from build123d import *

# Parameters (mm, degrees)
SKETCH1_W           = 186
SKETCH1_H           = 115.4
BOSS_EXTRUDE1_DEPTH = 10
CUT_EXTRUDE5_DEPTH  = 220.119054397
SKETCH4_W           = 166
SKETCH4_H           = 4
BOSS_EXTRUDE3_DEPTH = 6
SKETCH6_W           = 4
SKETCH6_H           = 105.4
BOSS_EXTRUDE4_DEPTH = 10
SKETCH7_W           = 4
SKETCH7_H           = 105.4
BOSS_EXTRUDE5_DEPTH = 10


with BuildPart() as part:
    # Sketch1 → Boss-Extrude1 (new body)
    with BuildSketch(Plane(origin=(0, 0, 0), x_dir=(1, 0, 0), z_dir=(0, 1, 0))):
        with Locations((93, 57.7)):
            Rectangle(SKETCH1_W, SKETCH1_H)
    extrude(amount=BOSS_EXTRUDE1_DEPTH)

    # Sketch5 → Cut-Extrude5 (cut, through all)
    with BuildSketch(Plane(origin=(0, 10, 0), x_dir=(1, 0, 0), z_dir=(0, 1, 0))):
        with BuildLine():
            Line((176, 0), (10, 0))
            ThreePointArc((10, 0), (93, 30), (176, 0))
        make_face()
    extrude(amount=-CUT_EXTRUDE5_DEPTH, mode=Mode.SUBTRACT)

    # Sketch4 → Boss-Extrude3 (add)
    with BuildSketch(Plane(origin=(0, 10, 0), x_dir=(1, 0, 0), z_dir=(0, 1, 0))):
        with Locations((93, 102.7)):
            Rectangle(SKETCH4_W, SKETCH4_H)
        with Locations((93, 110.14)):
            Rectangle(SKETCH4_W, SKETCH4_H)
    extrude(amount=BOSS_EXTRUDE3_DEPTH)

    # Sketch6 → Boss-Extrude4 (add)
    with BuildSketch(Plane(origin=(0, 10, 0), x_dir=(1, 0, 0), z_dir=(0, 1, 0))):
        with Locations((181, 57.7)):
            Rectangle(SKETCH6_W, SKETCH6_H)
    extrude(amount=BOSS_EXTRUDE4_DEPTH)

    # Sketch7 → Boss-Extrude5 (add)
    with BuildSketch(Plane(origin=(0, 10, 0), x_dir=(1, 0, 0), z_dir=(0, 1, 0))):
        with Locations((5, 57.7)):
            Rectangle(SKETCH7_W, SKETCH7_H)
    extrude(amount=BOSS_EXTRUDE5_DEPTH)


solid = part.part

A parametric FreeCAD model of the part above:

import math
import FreeCAD as App
import Part
import Sketcher


def add_polygon(sketch, points):
    """Adds a closed chain of lines whose ends are joined by coincident constraints."""
    first, n = sketch.GeometryCount, len(points)
    for a, b in zip(points, points[1:] + points[:1]):
        sketch.addGeometry(Part.LineSegment(App.Vector(*a, 0), App.Vector(*b, 0)), False)
    for i in range(n):
        sketch.addConstraint(Sketcher.Constraint("Coincident", first + i, 2, first + (i + 1) % n, 1))

doc = App.newDocument("Part")
params = doc.addObject("Spreadsheet::Sheet", "Params")
for row, (alias, value) in enumerate([
    ("sketch1_width", "186 mm"),
    ("sketch1_height", "115.4 mm"),
    ("pad1_length", "10 mm"),
    ("sketch2_width", "166 mm"),
    ("sketch3_width", "166 mm"),
    ("sketch3_height", "4 mm"),
    ("pad2_length", "6 mm"),
    ("sketch4_width", "4 mm"),
    ("sketch4_height", "105.4 mm"),
    ("pad3_length", "10 mm"),
    ("sketch5_width", "4 mm"),
    ("sketch5_height", "105.4 mm"),
    ("pad4_length", "10 mm"),
], start=1):
    params.set(f"A{row}", alias)
    params.set(f"B{row}", "=" + value)
    params.setAlias(f"B{row}", alias)

body = doc.addObject("PartDesign::Body", "Body")

sketch1 = doc.addObject("Sketcher::SketchObject", "Sketch")
body.addObject(sketch1)
sketch1.AttachmentSupport = (doc.XZ_Plane, [""])
sketch1.MapMode = "FlatFace"
add_polygon(sketch1, [(0, -115), (0, 0), (186, 0), (186, -115)])
sketch1.addConstraint([
    Sketcher.Constraint("Vertical", 0),
    Sketcher.Constraint("Horizontal", 1),
    Sketcher.Constraint("Vertical", 2),
    Sketcher.Constraint("Horizontal", 3),
    Sketcher.Constraint("Coincident", 0, 2, -1, 1),
    Sketcher.Constraint("DistanceX", 1, 1, 1, 2, 186.0),
    Sketcher.Constraint("DistanceY", 0, 1, 0, 2, 115.4),
])
sketch1.setExpression("Constraints[9]", "Params.sketch1_width")
sketch1.setExpression("Constraints[10]", "Params.sketch1_height")
pad1 = doc.addObject("PartDesign::Pad", "Pad")
body.addObject(pad1)
pad1.Profile = sketch1
pad1.setExpression("Length", "Params.pad1_length")
pad1.Reversed = True

sketch2 = doc.addObject("Sketcher::SketchObject", "Sketch001")
body.addObject(sketch2)
sketch2.AttachmentSupport = (doc.XZ_Plane, [""])
sketch2.MapMode = "FlatFace"
sketch2.AttachmentOffset = App.Placement(App.Vector(0, 0, -10), App.Rotation())
sketch2.addGeometry([
    Part.LineSegment(App.Vector(10, 0, 0), App.Vector(176, 0, 0)),
    Part.ArcOfCircle(Part.Circle(App.Vector(93, 100, 0), App.Vector(0, 0, 1), 130), math.radians(-130), math.radians(-50)),
], False)
sketch2.addConstraint([
    Sketcher.Constraint("Coincident", 0, 1, 1, 1),
    Sketcher.Constraint("Coincident", 1, 2, 0, 2),
    Sketcher.Constraint("Horizontal", 0),
    Sketcher.Constraint("PointOnObject", 0, 1, -1),
    Sketcher.Constraint("DistanceX", 0, 1, 0, 2, 166.0),
    Sketcher.Constraint("DistanceX", -1, 1, 1, 3, 93.0),
    Sketcher.Constraint("Radius", 1, 129.816667),
])
sketch2.setExpression("Constraints[4]", "Params.sketch2_width")
pocket1 = doc.addObject("PartDesign::Pocket", "Pocket")
body.addObject(pocket1)
pocket1.Profile = sketch2
pocket1.Type = "ThroughAll"
pocket1.Reversed = True

sketch3 = doc.addObject("Sketcher::SketchObject", "Sketch002")
body.addObject(sketch3)
sketch3.AttachmentSupport = (doc.XZ_Plane, [""])
sketch3.MapMode = "FlatFace"
sketch3.AttachmentOffset = App.Placement(App.Vector(0, 0, -10), App.Rotation())
add_polygon(sketch3, [(10, -104.7), (10, -100.7), (176, -100.7), (176, -104.7)])
add_polygon(sketch3, [(10, -112.1), (10, -108.1), (176, -108.1), (176, -112.1)])
sketch3.addConstraint([
    Sketcher.Constraint("Vertical", 0),
    Sketcher.Constraint("Horizontal", 1),
    Sketcher.Constraint("Vertical", 2),
    Sketcher.Constraint("Horizontal", 3),
    Sketcher.Constraint("Vertical", 4),
    Sketcher.Constraint("Horizontal", 5),
    Sketcher.Constraint("Vertical", 6),
    Sketcher.Constraint("Horizontal", 7),
    Sketcher.Constraint("Vertical", 3, 2, 4, 2),
    Sketcher.Constraint("Vertical", 2, 2, 5, 2),
    Sketcher.Constraint("Equal", 2, 4),
    Sketcher.Constraint("DistanceX", 1, 1, 1, 2, 166.0),
    Sketcher.Constraint("DistanceY", 0, 1, 0, 2, 4.0),
    Sketcher.Constraint("DistanceX", -1, 1, 0, 2, 10.0),
    Sketcher.Constraint("DistanceY", 0, 2, -1, 1, 100.7),
    Sketcher.Constraint("DistanceY", 4, 2, -1, 1, 108.14),
])
sketch3.setExpression("Constraints[19]", "Params.sketch3_width")
sketch3.setExpression("Constraints[20]", "Params.sketch3_height")
pad2 = doc.addObject("PartDesign::Pad", "Pad001")
body.addObject(pad2)
pad2.Profile = sketch3
pad2.setExpression("Length", "Params.pad2_length")
pad2.Reversed = True

sketch4 = doc.addObject("Sketcher::SketchObject", "Sketch003")
body.addObject(sketch4)
sketch4.AttachmentSupport = (doc.XZ_Plane, [""])
sketch4.MapMode = "FlatFace"
sketch4.AttachmentOffset = App.Placement(App.Vector(0, 0, -10), App.Rotation())
add_polygon(sketch4, [(179, -110.4), (179, -5), (183, -5), (183, -110.4)])
sketch4.addConstraint([
    Sketcher.Constraint("Vertical", 0),
    Sketcher.Constraint("Horizontal", 1),
    Sketcher.Constraint("Vertical", 2),
    Sketcher.Constraint("Horizontal", 3),
    Sketcher.Constraint("DistanceX", 1, 1, 1, 2, 4.0),
    Sketcher.Constraint("DistanceY", 0, 1, 0, 2, 105.4),
    Sketcher.Constraint("DistanceX", -1, 1, 0, 2, 179.0),
    Sketcher.Constraint("DistanceY", 0, 2, -1, 1, 5.0),
])
sketch4.setExpression("Constraints[8]", "Params.sketch4_width")
sketch4.setExpression("Constraints[9]", "Params.sketch4_height")
pad3 = doc.addObject("PartDesign::Pad", "Pad002")
body.addObject(pad3)
pad3.Profile = sketch4
pad3.setExpression("Length", "Params.pad3_length")
pad3.Reversed = True

sketch5 = doc.addObject("Sketcher::SketchObject", "Sketch004")
body.addObject(sketch5)
sketch5.AttachmentSupport = (doc.XZ_Plane, [""])
sketch5.MapMode = "FlatFace"
sketch5.AttachmentOffset = App.Placement(App.Vector(0, 0, -10), App.Rotation())
add_polygon(sketch5, [(3, -110.4), (3, -5), (7, -5), (7, -110.4)])
sketch5.addConstraint([
    Sketcher.Constraint("Vertical", 0),
    Sketcher.Constraint("Horizontal", 1),
    Sketcher.Constraint("Vertical", 2),
    Sketcher.Constraint("Horizontal", 3),
    Sketcher.Constraint("DistanceX", 1, 1, 1, 2, 4.0),
    Sketcher.Constraint("DistanceY", 0, 1, 0, 2, 105.4),
    Sketcher.Constraint("DistanceX", -1, 1, 0, 2, 3.0),
    Sketcher.Constraint("DistanceY", 0, 2, -1, 1, 5.0),
])
sketch5.setExpression("Constraints[8]", "Params.sketch5_width")
sketch5.setExpression("Constraints[9]", "Params.sketch5_height")
pad4 = doc.addObject("PartDesign::Pad", "Pad003")
body.addObject(pad4)
pad4.Profile = sketch5
pad4.setExpression("Length", "Params.pad4_length")
pad4.Reversed = True

doc.recompute()
